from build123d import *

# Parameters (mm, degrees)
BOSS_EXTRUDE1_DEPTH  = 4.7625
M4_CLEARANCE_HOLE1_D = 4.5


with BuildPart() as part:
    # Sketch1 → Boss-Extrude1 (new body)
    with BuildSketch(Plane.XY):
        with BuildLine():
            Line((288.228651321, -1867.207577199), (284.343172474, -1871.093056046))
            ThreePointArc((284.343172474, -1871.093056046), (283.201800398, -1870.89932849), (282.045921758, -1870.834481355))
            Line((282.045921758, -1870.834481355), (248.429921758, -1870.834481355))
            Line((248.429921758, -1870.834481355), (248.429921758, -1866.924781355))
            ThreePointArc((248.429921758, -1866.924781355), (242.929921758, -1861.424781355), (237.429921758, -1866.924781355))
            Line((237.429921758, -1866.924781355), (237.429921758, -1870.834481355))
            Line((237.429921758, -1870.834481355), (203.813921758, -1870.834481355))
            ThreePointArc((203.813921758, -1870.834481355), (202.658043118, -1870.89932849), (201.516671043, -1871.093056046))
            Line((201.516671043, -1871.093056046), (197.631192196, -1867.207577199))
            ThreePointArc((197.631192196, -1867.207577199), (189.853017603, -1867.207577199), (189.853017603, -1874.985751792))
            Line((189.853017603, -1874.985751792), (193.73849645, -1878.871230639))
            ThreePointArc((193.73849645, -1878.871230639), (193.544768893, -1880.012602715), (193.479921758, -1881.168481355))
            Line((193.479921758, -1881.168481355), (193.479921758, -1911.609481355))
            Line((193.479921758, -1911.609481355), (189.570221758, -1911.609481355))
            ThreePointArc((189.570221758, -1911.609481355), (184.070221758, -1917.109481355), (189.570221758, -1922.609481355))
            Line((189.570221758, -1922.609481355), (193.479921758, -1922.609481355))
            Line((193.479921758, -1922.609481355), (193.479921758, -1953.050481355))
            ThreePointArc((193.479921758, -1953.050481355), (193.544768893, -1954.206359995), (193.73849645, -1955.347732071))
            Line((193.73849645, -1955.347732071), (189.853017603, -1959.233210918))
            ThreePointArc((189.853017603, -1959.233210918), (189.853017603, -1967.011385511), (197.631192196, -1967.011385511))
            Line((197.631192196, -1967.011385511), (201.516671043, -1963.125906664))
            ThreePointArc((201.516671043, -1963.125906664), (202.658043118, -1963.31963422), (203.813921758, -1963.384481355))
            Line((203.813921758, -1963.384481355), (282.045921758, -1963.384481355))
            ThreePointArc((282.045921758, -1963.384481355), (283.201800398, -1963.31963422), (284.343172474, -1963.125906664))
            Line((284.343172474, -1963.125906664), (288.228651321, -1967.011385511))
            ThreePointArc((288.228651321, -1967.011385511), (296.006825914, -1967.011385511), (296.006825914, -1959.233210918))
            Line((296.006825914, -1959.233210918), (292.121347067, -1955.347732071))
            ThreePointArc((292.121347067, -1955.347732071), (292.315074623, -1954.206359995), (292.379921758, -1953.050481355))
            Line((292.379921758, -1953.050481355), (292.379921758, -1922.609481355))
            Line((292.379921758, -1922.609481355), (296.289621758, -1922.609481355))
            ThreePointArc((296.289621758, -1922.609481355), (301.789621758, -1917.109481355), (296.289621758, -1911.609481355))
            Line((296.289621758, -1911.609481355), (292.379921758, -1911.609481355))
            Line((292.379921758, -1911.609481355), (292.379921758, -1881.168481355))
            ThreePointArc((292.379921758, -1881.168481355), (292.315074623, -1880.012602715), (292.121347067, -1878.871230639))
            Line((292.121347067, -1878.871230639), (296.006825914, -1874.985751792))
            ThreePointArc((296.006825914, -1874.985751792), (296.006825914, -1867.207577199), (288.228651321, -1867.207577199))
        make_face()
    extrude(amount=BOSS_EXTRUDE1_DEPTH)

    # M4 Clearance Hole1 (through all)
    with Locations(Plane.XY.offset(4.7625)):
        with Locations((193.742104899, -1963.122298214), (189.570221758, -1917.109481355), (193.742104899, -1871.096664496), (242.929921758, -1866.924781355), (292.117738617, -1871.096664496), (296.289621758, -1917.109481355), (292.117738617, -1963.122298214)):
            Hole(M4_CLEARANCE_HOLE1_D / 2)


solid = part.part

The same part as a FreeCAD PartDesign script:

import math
import FreeCAD as App
import Part
import Sketcher
from FreeCAD import Vector

doc = App.newDocument("Part")
params = doc.addObject("Spreadsheet::Sheet", "Params")
for row, (alias, value) in enumerate([
    ("sketch1_radius", "5.5 mm"),
    ("pad1_length", "4.7625 mm"),
    ("sketch2_diameter", "4.5 mm"),
    ("hole_diameter", "4.5 mm"),
], start=1):
    params.set(f"A{row}", alias)
    params.set(f"B{row}", "=" + value)
    params.setAlias(f"B{row}", alias)

body = doc.addObject("PartDesign::Body", "Body")

sketch1 = body.newObject("Sketcher::SketchObject", "Sketch")
sketch1.AttachmentSupport = (doc.getObject("XY_Plane"), [""])
sketch1.MapMode = "FlatFace"
sketch1.addGeometry([
    Part.LineSegment(Vector(288.228651, -1867.207577, 0), Vector(284.343172, -1871.093056, 0)),
    Part.ArcOfCircle(Part.Circle(Vector(282.045922, -1881.168481, 0), Vector(0, 0, 1), 10.334), math.radians(77.155827), math.radians(90)),
    Part.LineSegment(Vector(282.045922, -1870.834481, 0), Vector(248.429922, -1870.834481, 0)),
    Part.LineSegment(Vector(248.429922, -1870.834481, 0), Vector(248.429922, -1866.924781, 0)),
    Part.ArcOfCircle(Part.Circle(Vector(242.929922, -1866.924781, 0), Vector(0, 0, 1), 5.5), math.radians(0), math.radians(180)),
    Part.LineSegment(Vector(237.429922, -1866.924781, 0), Vector(237.429922, -1870.834481, 0)),
    Part.LineSegment(Vector(237.429922, -1870.834481, 0), Vector(203.813922, -1870.834481, 0)),
    Part.ArcOfCircle(Part.Circle(Vector(203.813922, -1881.168481, 0), Vector(0, 0, 1), 10.334), math.radians(90), math.radians(102.844173)),
    Part.LineSegment(Vector(201.516671, -1871.093056, 0), Vector(197.631192, -1867.207577, 0)),
    Part.ArcOfCircle(Part.Circle(Vector(193.742105, -1871.096664, 0), Vector(0, 0, 1), 5.5), math.radians(45), math.radians(225)),
    Part.LineSegment(Vector(189.853018, -1874.985752, 0), Vector(193.738496, -1878.871231, 0)),
    Part.ArcOfCircle(Part.Circle(Vector(203.813922, -1881.168481, 0), Vector(0, 0, 1), 10.334), math.radians(167.155827), math.radians(180)),
    Part.LineSegment(Vector(193.479922, -1881.168481, 0), Vector(193.479922, -1911.609481, 0)),
    Part.LineSegment(Vector(193.479922, -1911.609481, 0), Vector(189.570222, -1911.609481, 0)),
    Part.ArcOfCircle(Part.Circle(Vector(189.570222, -1917.109481, 0), Vector(0, 0, 1), 5.5), math.radians(90), math.radians(270)),
    Part.LineSegment(Vector(189.570222, -1922.609481, 0), Vector(193.479922, -1922.609481, 0)),
    Part.LineSegment(Vector(193.479922, -1922.609481, 0), Vector(193.479922, -1953.050481, 0)),
    Part.ArcOfCircle(Part.Circle(Vector(203.813922, -1953.050481, 0), Vector(0, 0, 1), 10.334), math.radians(-180), math.radians(-167.155827)),
    Part.LineSegment(Vector(193.738496, -1955.347732, 0), Vector(189.853018, -1959.233211, 0)),
    Part.ArcOfCircle(Part.Circle(Vector(193.742105, -1963.122298, 0), Vector(0, 0, 1), 5.5), math.radians(135), math.radians(315)),
    Part.LineSegment(Vector(197.631192, -1967.011386, 0), Vector(201.516671, -1963.125907, 0)),
    Part.ArcOfCircle(Part.Circle(Vector(203.813922, -1953.050481, 0), Vector(0, 0, 1), 10.334), math.radians(-102.844173), math.radians(-90)),
    Part.LineSegment(Vector(203.813922, -1963.384481, 0), Vector(282.045922, -1963.384481, 0)),
    Part.ArcOfCircle(Part.Circle(Vector(282.045922, -1953.050481, 0), Vector(0, 0, 1), 10.334), math.radians(-90), math.radians(-77.155827)),
    Part.LineSegment(Vector(284.343172, -1963.125907, 0), Vector(288.228651, -1967.011386, 0)),
    Part.ArcOfCircle(Part.Circle(Vector(292.117739, -1963.122298, 0), Vector(0, 0, 1), 5.5), math.radians(-135), math.radians(45)),
    Part.LineSegment(Vector(296.006826, -1959.233211, 0), Vector(292.121347, -1955.347732, 0)),
    Part.ArcOfCircle(Part.Circle(Vector(282.045922, -1953.050481, 0), Vector(0, 0, 1), 10.334), math.radians(-12.844173), math.radians(0)),
    Part.LineSegment(Vector(292.379922, -1953.050481, 0), Vector(292.379922, -1922.609481, 0)),
    Part.LineSegment(Vector(292.379922, -1922.609481, 0), Vector(296.289622, -1922.609481, 0)),
    Part.ArcOfCircle(Part.Circle(Vector(296.289622, -1917.109481, 0), Vector(0, 0, 1), 5.5), math.radians(-90), math.radians(90)),
    Part.LineSegment(Vector(296.289622, -1911.609481, 0), Vector(292.379922, -1911.609481, 0)),
    Part.LineSegment(Vector(292.379922, -1911.609481, 0), Vector(292.379922, -1881.168481, 0)),
    Part.ArcOfCircle(Part.Circle(Vector(282.045922, -1881.168481, 0), Vector(0, 0, 1), 10.334), math.radians(0), math.radians(12.844173)),
    Part.LineSegment(Vector(292.121347, -1878.871231, 0), Vector(296.006826, -1874.985752, 0)),
    Part.ArcOfCircle(Part.Circle(Vector(292.117739, -1871.096664, 0), Vector(0, 0, 1), 5.5), math.radians(-45), math.radians(135)),
], False)
sketch1.addConstraint([
    Sketcher.Constraint("Coincident", 0, 2, 1, 1),
    Sketcher.Constraint("Tangent", 1, 2, 2, 1),
    Sketcher.Constraint("Coincident", 2, 2, 3, 1),
    Sketcher.Constraint("Tangent", 3, 2, 4, 1),
    Sketcher.Constraint("Tangent", 4, 2, 5, 1),
    Sketcher.Constraint("Coincident", 5, 2, 6, 1),
    Sketcher.Constraint("Tangent", 6, 2, 7, 1),
    Sketcher.Constraint("Coincident", 7, 2, 8, 1),
    Sketcher.Constraint("Tangent", 8, 2, 9, 1),
    Sketcher.Constraint("Tangent", 9, 2, 10, 1),
    Sketcher.Constraint("Coincident", 10, 2, 11, 1),
    Sketcher.Constraint("Tangent", 11, 2, 12, 1),
    Sketcher.Constraint("Coincident", 12, 2, 13, 1),
    Sketcher.Constraint("Tangent", 13, 2, 14, 1),
    Sketcher.Constraint("Tangent", 14, 2, 15, 1),
    Sketcher.Constraint("Coincident", 15, 2, 16, 1),
    Sketcher.Constraint("Tangent", 16, 2, 17, 1),
    Sketcher.Constraint("Coincident", 17, 2, 18, 1),
    Sketcher.Constraint("Tangent", 18, 2, 19, 1),
    Sketcher.Constraint("Tangent", 19, 2, 20, 1),
    Sketcher.Constraint("Coincident", 20, 2, 21, 1),
    Sketcher.Constraint("Tangent", 21, 2, 22, 1),
    Sketcher.Constraint("Tangent", 22, 2, 23, 1),
    Sketcher.Constraint("Coincident", 23, 2, 24, 1),
    Sketcher.Constraint("Tangent", 24, 2, 25, 1),
    Sketcher.Constraint("Tangent", 25, 2, 26, 1),
    Sketcher.Constraint("Coincident", 26, 2, 27, 1),
    Sketcher.Constraint("Tangent", 27, 2, 28, 1),
    Sketcher.Constraint("Coincident", 28, 2, 29, 1),
    Sketcher.Constraint("Tangent", 29, 2, 30, 1),
    Sketcher.Constraint("Tangent", 30, 2, 31, 1),
    Sketcher.Constraint("Coincident", 31, 2, 32, 1),
    Sketcher.Constraint("Tangent", 32, 2, 33, 1),
    Sketcher.Constraint("Coincident", 33, 2, 34, 1),
    Sketcher.Constraint("Tangent", 34, 2, 35, 1),
    Sketcher.Constraint("Tangent", 35, 2, 0, 1),
    Sketcher.Constraint("Horizontal", 2),
    Sketcher.Constraint("Vertical", 3),
    Sketcher.Constraint("Vertical", 5),
    Sketcher.Constraint("Horizontal", 6),
    Sketcher.Constraint("Vertical", 12),
    Sketcher.Constraint("Horizontal", 13),
    Sketcher.Constraint("Horizontal", 15),
    Sketcher.Constraint("Vertical", 16),
    Sketcher.Constraint("Horizontal", 22),
    Sketcher.Constraint("Vertical", 28),
    Sketcher.Constraint("Horizontal", 29),
    Sketcher.Constraint("Horizontal", 31),
    Sketcher.Constraint("Vertical", 32),
    Sketcher.Constraint("Coincident", 11, 3, 7, 3),
    Sketcher.Constraint("Coincident", 21, 3, 17, 3),
    Sketcher.Constraint("Coincident", 27, 3, 23, 3),
    Sketcher.Constraint("Coincident", 33, 3, 1, 3),
    Sketcher.Constraint("Equal", 1, 7),
    Sketcher.Constraint("Equal", 4, 9),
    Sketcher.Constraint("Equal", 7, 11),
    Sketcher.Constraint("Equal", 9, 14),
    Sketcher.Constraint("Equal", 11, 17),
    Sketcher.Constraint("Equal", 14, 19),
    Sketcher.Constraint("Equal", 17, 21),
    Sketcher.Constraint("Equal", 21, 23),
    Sketcher.Constraint("Equal", 19, 25),
    Sketcher.Constraint("Equal", 23, 27),
    Sketcher.Constraint("Equal", 25, 30),
    Sketcher.Constraint("Equal", 27, 33),
    Sketcher.Constraint("Equal", 30, 35),
    Sketcher.Constraint("Perpendicular", 0, 8),
    Sketcher.Constraint("Parallel", 8, 10),
    Sketcher.Constraint("Perpendicular", 10, 18),
    Sketcher.Constraint("Parallel", 18, 20),
    Sketcher.Constraint("Perpendicular", 20, 24),
    Sketcher.Constraint("Parallel", 24, 26),
    Sketcher.Constraint("Perpendicular", 26, 34),
    Sketcher.Constraint("Horizontal", 1, 3, 7, 3),
    Sketcher.Constraint("Horizontal", 19, 3, 25, 3),
    Sketcher.Constraint("Horizontal", 14, 3, 30, 3),
    Sketcher.Constraint("Horizontal", 9, 3, 35, 3),
    Sketcher.Constraint("Horizontal", 0, 2, 7, 2),
    Sketcher.Constraint("Horizontal", 20, 2, 23, 2),
    Sketcher.Constraint("Horizontal", 19, 2, 24, 2),
    Sketcher.Constraint("Vertical", 11, 3, 17, 3),
    Sketcher.Constraint("Vertical", 9, 3, 19, 3),
    Sketcher.Constraint("Vertical", 1, 3, 23, 3),
    Sketcher.Constraint("Vertical", 10, 2, 17, 2),
    Sketcher.Constraint("Equal", 2, 6),
    Sketcher.Constraint("Equal", 15, 29),
    Sketcher.Constraint("Equal", 31, 3),
    Sketcher.Constraint("Equal", 12, 16),
    Sketcher.Constraint("Equal", 8, 10),
    Sketcher.Constraint("Radius", 4, 5.5),
    Sketcher.Constraint("Radius", 1, 10.334),
    Sketcher.Constraint("DistanceX", 2, 2, 2, 1, 33.616),
    Sketcher.Constraint("DistanceY", 12, 2, 12, 1, 30.441),
    Sketcher.Constraint("DistanceX", 13, 2, 13, 1, 3.9097),
    Sketcher.Constraint("DistanceY", 19, 3, -1, 1, 1963.122298),
    Sketcher.Constraint("DistanceX", -1, 1, 1, 3, 282.045922),
    Sketcher.Constraint("DistanceY", 1, 3, -1, 1, 1881.168481),
])
sketch1.setExpression("Constraints[89]", "Params.sketch1_radius")
pad1 = body.newObject("PartDesign::Pad", "Pad")
pad1.Profile = sketch1
pad1.setExpression("Length", "Params.pad1_length")

sketch2 = body.newObject("Sketcher::SketchObject", "Sketch001")
sketch2.AttachmentSupport = (doc.getObject("XY_Plane"), [""])
sketch2.MapMode = "FlatFace"
sketch2.AttachmentOffset = App.Placement(Vector(0, 0, 4.7625), App.Rotation())
sketch2.addGeometry([
    Part.Circle(Vector(193.742105, -1963.122298, 0), Vector(0, 0, 1), 2.25),
    Part.Circle(Vector(189.570222, -1917.109481, 0), Vector(0, 0, 1), 2.25),
    Part.Circle(Vector(193.742105, -1871.096664, 0), Vector(0, 0, 1), 2.25),
    Part.Circle(Vector(242.929922, -1866.924781, 0), Vector(0, 0, 1), 2.25),
    Part.Circle(Vector(292.117739, -1871.096664, 0), Vector(0, 0, 1), 2.25),
    Part.Circle(Vector(296.289622, -1917.109481, 0), Vector(0, 0, 1), 2.25),
    Part.Circle(Vector(292.117739, -1963.122298, 0), Vector(0, 0, 1), 2.25),
], False)
sketch2.addConstraint([
    Sketcher.Constraint("Equal", 0, 1),
    Sketcher.Constraint("Equal", 1, 2),
    Sketcher.Constraint("Equal", 2, 3),
    Sketcher.Constraint("Equal", 3, 4),
    Sketcher.Constraint("Equal", 4, 5),
    Sketcher.Constraint("Equal", 5, 6),
    Sketcher.Constraint("Horizontal", 2, 3, 4, 3),
    Sketcher.Constraint("Horizontal", 1, 3, 5, 3),
    Sketcher.Constraint("Horizontal", 0, 3, 6, 3),
    Sketcher.Constraint("Vertical", 0, 3, 2, 3),
    Sketcher.Constraint("Vertical", 4, 3, 6, 3),
    Sketcher.Constraint("Diameter", 0, 4.5),
    Sketcher.Constraint("DistanceY", 0, 3, -1, 1, 1963.122298),
    Sketcher.Constraint("DistanceX", 1, 3, 3, 3, 53.3597),
    Sketcher.Constraint("DistanceY", 1, 3, 3, 3, 50.1847),
    Sketcher.Constraint("DistanceX", 3, 3, 5, 3, 53.3597),
    Sketcher.Constraint("DistanceX", -1, 1, 1, 3, 189.570222),
    Sketcher.Constraint("DistanceY", 1, 3, -1, 1, 1917.109481),
    Sketcher.Constraint("DistanceX", -1, 1, 4, 3, 292.117739),
    Sketcher.Constraint("DistanceX", -1, 1, 0, 3, 193.742105),
    Sketcher.Constraint("DistanceY", 2, 3, -1, 1, 1871.096664),
])
sketch2.setExpression("Constraints[11]", "Params.sketch2_diameter")
doc.recompute()
hole = body.newObject("PartDesign::Hole", "Hole")
hole.Profile = sketch2
hole.ThreadType = "None"
hole.setExpression("Diameter", "Params.hole_diameter")
hole.DepthType = "ThroughAll"

doc.recompute()
